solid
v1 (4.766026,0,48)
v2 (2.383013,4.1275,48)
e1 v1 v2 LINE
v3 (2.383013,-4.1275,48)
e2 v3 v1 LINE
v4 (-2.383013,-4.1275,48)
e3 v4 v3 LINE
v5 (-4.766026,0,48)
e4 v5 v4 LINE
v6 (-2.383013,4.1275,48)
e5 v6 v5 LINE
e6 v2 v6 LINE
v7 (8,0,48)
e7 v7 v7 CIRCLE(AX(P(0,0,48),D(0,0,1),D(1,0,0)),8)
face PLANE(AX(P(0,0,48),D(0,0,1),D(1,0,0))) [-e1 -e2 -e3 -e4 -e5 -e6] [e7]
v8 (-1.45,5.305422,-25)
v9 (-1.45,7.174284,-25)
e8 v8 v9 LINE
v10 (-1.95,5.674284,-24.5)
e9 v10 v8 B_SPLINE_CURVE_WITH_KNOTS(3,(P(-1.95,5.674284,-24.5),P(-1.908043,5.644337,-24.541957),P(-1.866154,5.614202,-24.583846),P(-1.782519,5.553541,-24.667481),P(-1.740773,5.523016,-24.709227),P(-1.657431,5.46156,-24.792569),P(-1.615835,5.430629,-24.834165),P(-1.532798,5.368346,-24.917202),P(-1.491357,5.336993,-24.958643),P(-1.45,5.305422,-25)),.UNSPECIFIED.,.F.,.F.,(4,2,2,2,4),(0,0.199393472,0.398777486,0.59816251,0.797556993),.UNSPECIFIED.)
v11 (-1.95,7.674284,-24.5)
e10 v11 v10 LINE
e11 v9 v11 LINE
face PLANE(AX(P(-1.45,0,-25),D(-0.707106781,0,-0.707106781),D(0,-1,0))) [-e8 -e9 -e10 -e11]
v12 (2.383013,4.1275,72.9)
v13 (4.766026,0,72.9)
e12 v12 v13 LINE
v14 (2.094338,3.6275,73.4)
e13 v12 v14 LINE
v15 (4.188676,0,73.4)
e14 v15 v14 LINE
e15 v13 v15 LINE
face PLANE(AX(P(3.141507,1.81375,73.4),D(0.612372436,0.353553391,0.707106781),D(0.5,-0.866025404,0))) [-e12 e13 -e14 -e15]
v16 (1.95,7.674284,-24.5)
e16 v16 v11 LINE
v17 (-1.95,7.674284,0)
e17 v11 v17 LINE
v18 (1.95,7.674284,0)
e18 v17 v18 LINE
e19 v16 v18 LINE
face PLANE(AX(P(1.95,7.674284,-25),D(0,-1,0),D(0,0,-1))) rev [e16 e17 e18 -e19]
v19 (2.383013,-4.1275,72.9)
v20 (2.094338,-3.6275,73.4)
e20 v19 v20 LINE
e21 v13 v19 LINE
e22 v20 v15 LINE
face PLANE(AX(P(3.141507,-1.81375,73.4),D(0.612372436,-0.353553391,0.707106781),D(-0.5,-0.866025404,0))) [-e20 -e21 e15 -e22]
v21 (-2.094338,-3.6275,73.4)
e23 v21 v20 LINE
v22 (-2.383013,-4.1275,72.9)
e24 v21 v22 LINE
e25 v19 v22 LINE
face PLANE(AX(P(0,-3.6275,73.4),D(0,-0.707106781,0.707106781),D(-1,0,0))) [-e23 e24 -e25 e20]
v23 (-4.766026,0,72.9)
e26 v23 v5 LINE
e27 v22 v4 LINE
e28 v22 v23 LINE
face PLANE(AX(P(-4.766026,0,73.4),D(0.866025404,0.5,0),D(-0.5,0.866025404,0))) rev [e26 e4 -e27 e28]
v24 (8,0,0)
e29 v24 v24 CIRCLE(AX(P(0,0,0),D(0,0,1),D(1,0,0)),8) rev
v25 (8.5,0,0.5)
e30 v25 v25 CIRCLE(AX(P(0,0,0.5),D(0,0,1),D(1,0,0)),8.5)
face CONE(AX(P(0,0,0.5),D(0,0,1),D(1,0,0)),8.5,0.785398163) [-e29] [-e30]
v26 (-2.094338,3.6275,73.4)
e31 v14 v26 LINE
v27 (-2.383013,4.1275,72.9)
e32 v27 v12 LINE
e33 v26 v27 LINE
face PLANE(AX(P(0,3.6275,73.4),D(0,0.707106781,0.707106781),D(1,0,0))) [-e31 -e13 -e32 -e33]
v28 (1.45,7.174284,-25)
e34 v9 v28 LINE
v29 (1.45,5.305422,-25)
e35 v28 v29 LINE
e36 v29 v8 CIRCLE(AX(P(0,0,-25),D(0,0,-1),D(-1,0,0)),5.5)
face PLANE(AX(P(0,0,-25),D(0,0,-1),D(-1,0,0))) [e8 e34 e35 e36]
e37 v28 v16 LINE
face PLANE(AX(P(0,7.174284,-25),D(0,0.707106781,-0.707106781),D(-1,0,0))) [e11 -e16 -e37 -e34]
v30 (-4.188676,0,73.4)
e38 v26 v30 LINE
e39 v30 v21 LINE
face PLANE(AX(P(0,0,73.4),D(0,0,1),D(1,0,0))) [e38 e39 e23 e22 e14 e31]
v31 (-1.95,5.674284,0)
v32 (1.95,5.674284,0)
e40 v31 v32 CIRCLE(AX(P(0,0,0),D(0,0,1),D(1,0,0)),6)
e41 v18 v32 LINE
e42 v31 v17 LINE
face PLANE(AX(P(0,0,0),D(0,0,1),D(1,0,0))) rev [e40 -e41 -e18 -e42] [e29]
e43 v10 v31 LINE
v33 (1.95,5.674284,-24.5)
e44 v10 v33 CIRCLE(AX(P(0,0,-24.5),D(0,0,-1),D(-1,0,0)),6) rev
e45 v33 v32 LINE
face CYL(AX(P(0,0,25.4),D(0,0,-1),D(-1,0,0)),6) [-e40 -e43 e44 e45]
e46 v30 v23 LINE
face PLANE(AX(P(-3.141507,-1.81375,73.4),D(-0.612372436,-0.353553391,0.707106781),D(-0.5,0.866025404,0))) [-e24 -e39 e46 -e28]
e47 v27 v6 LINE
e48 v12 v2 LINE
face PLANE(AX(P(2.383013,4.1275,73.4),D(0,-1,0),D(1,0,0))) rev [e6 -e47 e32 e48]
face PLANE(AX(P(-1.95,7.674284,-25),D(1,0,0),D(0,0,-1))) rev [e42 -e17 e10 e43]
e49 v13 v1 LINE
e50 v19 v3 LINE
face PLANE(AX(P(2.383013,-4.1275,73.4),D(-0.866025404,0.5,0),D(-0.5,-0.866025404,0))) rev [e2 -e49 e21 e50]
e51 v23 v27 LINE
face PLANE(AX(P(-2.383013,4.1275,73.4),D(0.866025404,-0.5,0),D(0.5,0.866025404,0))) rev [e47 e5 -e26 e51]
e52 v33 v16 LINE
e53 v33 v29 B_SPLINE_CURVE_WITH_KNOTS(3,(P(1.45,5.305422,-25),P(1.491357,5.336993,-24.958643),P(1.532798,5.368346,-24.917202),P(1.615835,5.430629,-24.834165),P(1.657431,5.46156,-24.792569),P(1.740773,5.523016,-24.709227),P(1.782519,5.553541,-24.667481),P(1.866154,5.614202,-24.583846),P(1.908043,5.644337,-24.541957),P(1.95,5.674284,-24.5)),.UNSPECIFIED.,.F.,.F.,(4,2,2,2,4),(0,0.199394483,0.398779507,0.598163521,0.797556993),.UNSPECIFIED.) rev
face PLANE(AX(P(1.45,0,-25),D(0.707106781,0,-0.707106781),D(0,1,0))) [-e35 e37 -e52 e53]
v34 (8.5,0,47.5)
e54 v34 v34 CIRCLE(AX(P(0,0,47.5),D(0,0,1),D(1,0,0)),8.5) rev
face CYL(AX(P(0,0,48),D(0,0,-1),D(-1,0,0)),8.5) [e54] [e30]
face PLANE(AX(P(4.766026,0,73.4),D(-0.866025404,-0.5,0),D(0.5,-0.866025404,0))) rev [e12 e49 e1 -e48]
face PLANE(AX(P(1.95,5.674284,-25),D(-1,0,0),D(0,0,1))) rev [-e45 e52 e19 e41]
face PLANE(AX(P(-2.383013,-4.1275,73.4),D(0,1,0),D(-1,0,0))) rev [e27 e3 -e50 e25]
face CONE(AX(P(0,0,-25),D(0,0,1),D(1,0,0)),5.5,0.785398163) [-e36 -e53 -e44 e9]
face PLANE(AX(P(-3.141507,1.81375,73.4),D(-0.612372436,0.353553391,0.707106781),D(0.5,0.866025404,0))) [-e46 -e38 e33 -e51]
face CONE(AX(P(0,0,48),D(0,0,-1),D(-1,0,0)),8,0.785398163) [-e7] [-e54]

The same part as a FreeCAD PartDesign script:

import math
import FreeCAD as App
import Part
import Sketcher
from FreeCAD import Vector
Q = App.Units.Quantity


def edges_at(feature, points):
    """Names of the edges that pass closest to the given points."""
    edges = feature.Shape.Edges
    near = lambda p: min(range(len(edges)), key=lambda i: edges[i].distToShape(Part.Vertex(*p))[0])
    return sorted({f"Edge{near(p) + 1}" for p in points})


def add_polygon(sketch, points):
    """Adds a closed chain of lines whose ends are joined by coincident constraints."""
    first, n = sketch.GeometryCount, len(points)
    for a, b in zip(points, points[1:] + points[:1]):
        sketch.addGeometry(Part.LineSegment(App.Vector(*a, 0), App.Vector(*b, 0)), False)
    for i in range(n):
        sketch.addConstraint(Sketcher.Constraint("Coincident", first + i, 2, first + (i + 1) % n, 1))

doc = App.newDocument("Part")
body = doc.addObject("PartDesign::Body", "Body")

# Sketch on XY plane
sketch1 = doc.addObject("Sketcher::SketchObject", "Sketch")
body.addObject(sketch1)
sketch1.AttachmentSupport = (doc.XY_Plane, [""])
sketch1.MapMode = "FlatFace"
sketch1.addGeometry(Part.Circle(Vector(0, 0, 0), Vector(0, 0, 1), 6), False)
sketch1.addConstraint([
    Sketcher.Constraint("Coincident", 0, 3, -1, 1),
    Sketcher.Constraint("Diameter", 0, Q("12 mm")),
])
pad1 = doc.addObject("PartDesign::Pad", "Pad")
body.addObject(pad1)
pad1.Profile = sketch1
pad1.Length = 25.4

# Sketch on XY plane
sketch2 = doc.addObject("Sketcher::SketchObject", "Sketch001")
body.addObject(sketch2)
sketch2.AttachmentSupport = (doc.XY_Plane, [""])
sketch2.MapMode = "FlatFace"
sketch2.AttachmentOffset = App.Placement(Vector(0, 0, -25), App.Rotation())
sketch2.addGeometry([
    Part.LineSegment(Vector(1.9, 7.7, 0), Vector(1.9, 5.7, 0)),
    Part.ArcOfCircle(Part.Circle(Vector(0, 0, 0), Vector(0, 0, 1), 6), math.radians(109), math.radians(431)),
    Part.LineSegment(Vector(-1.9, 5.7, 0), Vector(-1.9, 7.7, 0)),
    Part.LineSegment(Vector(-1.9, 7.7, 0), Vector(1.9, 7.7, 0)),
], False)
sketch2.addConstraint([
    Sketcher.Constraint("Coincident", 0, 2, 1, 2),
    Sketcher.Constraint("Coincident", 1, 1, 2, 1),
    Sketcher.Constraint("Coincident", 2, 2, 3, 1),
    Sketcher.Constraint("Coincident", 3, 2, 0, 1),
    Sketcher.Constraint("Vertical", 0),
    Sketcher.Constraint("Vertical", 2),
    Sketcher.Constraint("Horizontal", 3),
    Sketcher.Constraint("Coincident", 1, 3, -1, 1),
    Sketcher.Constraint("Horizontal", 0, 2, 1, 1),
    Sketcher.Constraint("Radius", 1, Q("6 mm")),
    Sketcher.Constraint("DistanceY", 0, 2, 0, 1, Q("2 mm")),
    Sketcher.Constraint("DistanceX", 3, 1, 3, 2, Q("3.9 mm")),
])
pad2 = doc.addObject("PartDesign::Pad", "Pad001")
body.addObject(pad2)
pad2.Profile = sketch2
pad2.Length = 25

# Sketch on XY plane
sketch3 = doc.addObject("Sketcher::SketchObject", "Sketch002")
body.addObject(sketch3)
sketch3.AttachmentSupport = (doc.XY_Plane, [""])
sketch3.MapMode = "FlatFace"
sketch3.addGeometry(Part.Circle(Vector(0, 0, 0), Vector(0, 0, 1), 8), False)
sketch3.addConstraint([
    Sketcher.Constraint("Coincident", 0, 3, -1, 1),
    Sketcher.Constraint("Diameter", 0, Q("17 mm")),
])
pad3 = doc.addObject("PartDesign::Pad", "Pad002")
body.addObject(pad3)
pad3.Profile = sketch3
pad3.Length = 48

# Sketch on XY plane
sketch4 = doc.addObject("Sketcher::SketchObject", "Sketch003")
body.addObject(sketch4)
sketch4.AttachmentSupport = (doc.XY_Plane, [""])
sketch4.MapMode = "FlatFace"
sketch4.AttachmentOffset = App.Placement(Vector(0, 0, 48), App.Rotation())
add_polygon(sketch4, [(4.8, 0), (2.4, 4.1), (-2.4, 4.1), (-4.8, 0), (-2.4, -4.1), (2.4, -4.1)])  # lines 0-5
sketch4.addConstraint([
    Sketcher.Constraint("Horizontal", 1),
    Sketcher.Constraint("Horizontal", 4),
    Sketcher.Constraint("Symmetric", 0, 2, 3, 2, -1, 1),
    Sketcher.Constraint("Symmetric", 2, 2, 5, 2, -1, 1),
    Sketcher.Constraint("PointOnObject", 2, 2, -1),
    Sketcher.Constraint("Parallel", 2, 5),
    Sketcher.Constraint("Vertical", 1, 2, 3, 2),
    Sketcher.Constraint("Angle", 0, Q("120 deg")),
    Sketcher.Constraint("DistanceY", 3, 2, 1, 2, Q("8.255 mm")),
    Sketcher.Constraint("DistanceX", 1, 2, 1, 1, Q("4.766026 mm")),
])
pad4 = doc.addObject("PartDesign::Pad", "Pad003")
body.addObject(pad4)
pad4.Profile = sketch4
pad4.Length = 25.4
doc.recompute()

chamfer = doc.addObject("PartDesign::Chamfer", "Chamfer")
body.addObject(chamfer)
chamfer.Base = (pad4, edges_at(pad4, [
    (-8.5, 0, 0),
    (-8.5, 0, 48),
    (3.575, -2.064, 73.4),
    (3.575, 2.064, 73.4),
    (0, 4.128, 73.4),
    (-3.575, 2.064, 73.4),
    (-3.575, -2.064, 73.4),
    (0, -4.128, 73.4),
    (0, -6, -25),
    (-1.95, 6.674, -25),
    (0, 7.674, -25),
    (1.95, 6.674, -25),
]))
chamfer.Size = 0.5

doc.recompute()
